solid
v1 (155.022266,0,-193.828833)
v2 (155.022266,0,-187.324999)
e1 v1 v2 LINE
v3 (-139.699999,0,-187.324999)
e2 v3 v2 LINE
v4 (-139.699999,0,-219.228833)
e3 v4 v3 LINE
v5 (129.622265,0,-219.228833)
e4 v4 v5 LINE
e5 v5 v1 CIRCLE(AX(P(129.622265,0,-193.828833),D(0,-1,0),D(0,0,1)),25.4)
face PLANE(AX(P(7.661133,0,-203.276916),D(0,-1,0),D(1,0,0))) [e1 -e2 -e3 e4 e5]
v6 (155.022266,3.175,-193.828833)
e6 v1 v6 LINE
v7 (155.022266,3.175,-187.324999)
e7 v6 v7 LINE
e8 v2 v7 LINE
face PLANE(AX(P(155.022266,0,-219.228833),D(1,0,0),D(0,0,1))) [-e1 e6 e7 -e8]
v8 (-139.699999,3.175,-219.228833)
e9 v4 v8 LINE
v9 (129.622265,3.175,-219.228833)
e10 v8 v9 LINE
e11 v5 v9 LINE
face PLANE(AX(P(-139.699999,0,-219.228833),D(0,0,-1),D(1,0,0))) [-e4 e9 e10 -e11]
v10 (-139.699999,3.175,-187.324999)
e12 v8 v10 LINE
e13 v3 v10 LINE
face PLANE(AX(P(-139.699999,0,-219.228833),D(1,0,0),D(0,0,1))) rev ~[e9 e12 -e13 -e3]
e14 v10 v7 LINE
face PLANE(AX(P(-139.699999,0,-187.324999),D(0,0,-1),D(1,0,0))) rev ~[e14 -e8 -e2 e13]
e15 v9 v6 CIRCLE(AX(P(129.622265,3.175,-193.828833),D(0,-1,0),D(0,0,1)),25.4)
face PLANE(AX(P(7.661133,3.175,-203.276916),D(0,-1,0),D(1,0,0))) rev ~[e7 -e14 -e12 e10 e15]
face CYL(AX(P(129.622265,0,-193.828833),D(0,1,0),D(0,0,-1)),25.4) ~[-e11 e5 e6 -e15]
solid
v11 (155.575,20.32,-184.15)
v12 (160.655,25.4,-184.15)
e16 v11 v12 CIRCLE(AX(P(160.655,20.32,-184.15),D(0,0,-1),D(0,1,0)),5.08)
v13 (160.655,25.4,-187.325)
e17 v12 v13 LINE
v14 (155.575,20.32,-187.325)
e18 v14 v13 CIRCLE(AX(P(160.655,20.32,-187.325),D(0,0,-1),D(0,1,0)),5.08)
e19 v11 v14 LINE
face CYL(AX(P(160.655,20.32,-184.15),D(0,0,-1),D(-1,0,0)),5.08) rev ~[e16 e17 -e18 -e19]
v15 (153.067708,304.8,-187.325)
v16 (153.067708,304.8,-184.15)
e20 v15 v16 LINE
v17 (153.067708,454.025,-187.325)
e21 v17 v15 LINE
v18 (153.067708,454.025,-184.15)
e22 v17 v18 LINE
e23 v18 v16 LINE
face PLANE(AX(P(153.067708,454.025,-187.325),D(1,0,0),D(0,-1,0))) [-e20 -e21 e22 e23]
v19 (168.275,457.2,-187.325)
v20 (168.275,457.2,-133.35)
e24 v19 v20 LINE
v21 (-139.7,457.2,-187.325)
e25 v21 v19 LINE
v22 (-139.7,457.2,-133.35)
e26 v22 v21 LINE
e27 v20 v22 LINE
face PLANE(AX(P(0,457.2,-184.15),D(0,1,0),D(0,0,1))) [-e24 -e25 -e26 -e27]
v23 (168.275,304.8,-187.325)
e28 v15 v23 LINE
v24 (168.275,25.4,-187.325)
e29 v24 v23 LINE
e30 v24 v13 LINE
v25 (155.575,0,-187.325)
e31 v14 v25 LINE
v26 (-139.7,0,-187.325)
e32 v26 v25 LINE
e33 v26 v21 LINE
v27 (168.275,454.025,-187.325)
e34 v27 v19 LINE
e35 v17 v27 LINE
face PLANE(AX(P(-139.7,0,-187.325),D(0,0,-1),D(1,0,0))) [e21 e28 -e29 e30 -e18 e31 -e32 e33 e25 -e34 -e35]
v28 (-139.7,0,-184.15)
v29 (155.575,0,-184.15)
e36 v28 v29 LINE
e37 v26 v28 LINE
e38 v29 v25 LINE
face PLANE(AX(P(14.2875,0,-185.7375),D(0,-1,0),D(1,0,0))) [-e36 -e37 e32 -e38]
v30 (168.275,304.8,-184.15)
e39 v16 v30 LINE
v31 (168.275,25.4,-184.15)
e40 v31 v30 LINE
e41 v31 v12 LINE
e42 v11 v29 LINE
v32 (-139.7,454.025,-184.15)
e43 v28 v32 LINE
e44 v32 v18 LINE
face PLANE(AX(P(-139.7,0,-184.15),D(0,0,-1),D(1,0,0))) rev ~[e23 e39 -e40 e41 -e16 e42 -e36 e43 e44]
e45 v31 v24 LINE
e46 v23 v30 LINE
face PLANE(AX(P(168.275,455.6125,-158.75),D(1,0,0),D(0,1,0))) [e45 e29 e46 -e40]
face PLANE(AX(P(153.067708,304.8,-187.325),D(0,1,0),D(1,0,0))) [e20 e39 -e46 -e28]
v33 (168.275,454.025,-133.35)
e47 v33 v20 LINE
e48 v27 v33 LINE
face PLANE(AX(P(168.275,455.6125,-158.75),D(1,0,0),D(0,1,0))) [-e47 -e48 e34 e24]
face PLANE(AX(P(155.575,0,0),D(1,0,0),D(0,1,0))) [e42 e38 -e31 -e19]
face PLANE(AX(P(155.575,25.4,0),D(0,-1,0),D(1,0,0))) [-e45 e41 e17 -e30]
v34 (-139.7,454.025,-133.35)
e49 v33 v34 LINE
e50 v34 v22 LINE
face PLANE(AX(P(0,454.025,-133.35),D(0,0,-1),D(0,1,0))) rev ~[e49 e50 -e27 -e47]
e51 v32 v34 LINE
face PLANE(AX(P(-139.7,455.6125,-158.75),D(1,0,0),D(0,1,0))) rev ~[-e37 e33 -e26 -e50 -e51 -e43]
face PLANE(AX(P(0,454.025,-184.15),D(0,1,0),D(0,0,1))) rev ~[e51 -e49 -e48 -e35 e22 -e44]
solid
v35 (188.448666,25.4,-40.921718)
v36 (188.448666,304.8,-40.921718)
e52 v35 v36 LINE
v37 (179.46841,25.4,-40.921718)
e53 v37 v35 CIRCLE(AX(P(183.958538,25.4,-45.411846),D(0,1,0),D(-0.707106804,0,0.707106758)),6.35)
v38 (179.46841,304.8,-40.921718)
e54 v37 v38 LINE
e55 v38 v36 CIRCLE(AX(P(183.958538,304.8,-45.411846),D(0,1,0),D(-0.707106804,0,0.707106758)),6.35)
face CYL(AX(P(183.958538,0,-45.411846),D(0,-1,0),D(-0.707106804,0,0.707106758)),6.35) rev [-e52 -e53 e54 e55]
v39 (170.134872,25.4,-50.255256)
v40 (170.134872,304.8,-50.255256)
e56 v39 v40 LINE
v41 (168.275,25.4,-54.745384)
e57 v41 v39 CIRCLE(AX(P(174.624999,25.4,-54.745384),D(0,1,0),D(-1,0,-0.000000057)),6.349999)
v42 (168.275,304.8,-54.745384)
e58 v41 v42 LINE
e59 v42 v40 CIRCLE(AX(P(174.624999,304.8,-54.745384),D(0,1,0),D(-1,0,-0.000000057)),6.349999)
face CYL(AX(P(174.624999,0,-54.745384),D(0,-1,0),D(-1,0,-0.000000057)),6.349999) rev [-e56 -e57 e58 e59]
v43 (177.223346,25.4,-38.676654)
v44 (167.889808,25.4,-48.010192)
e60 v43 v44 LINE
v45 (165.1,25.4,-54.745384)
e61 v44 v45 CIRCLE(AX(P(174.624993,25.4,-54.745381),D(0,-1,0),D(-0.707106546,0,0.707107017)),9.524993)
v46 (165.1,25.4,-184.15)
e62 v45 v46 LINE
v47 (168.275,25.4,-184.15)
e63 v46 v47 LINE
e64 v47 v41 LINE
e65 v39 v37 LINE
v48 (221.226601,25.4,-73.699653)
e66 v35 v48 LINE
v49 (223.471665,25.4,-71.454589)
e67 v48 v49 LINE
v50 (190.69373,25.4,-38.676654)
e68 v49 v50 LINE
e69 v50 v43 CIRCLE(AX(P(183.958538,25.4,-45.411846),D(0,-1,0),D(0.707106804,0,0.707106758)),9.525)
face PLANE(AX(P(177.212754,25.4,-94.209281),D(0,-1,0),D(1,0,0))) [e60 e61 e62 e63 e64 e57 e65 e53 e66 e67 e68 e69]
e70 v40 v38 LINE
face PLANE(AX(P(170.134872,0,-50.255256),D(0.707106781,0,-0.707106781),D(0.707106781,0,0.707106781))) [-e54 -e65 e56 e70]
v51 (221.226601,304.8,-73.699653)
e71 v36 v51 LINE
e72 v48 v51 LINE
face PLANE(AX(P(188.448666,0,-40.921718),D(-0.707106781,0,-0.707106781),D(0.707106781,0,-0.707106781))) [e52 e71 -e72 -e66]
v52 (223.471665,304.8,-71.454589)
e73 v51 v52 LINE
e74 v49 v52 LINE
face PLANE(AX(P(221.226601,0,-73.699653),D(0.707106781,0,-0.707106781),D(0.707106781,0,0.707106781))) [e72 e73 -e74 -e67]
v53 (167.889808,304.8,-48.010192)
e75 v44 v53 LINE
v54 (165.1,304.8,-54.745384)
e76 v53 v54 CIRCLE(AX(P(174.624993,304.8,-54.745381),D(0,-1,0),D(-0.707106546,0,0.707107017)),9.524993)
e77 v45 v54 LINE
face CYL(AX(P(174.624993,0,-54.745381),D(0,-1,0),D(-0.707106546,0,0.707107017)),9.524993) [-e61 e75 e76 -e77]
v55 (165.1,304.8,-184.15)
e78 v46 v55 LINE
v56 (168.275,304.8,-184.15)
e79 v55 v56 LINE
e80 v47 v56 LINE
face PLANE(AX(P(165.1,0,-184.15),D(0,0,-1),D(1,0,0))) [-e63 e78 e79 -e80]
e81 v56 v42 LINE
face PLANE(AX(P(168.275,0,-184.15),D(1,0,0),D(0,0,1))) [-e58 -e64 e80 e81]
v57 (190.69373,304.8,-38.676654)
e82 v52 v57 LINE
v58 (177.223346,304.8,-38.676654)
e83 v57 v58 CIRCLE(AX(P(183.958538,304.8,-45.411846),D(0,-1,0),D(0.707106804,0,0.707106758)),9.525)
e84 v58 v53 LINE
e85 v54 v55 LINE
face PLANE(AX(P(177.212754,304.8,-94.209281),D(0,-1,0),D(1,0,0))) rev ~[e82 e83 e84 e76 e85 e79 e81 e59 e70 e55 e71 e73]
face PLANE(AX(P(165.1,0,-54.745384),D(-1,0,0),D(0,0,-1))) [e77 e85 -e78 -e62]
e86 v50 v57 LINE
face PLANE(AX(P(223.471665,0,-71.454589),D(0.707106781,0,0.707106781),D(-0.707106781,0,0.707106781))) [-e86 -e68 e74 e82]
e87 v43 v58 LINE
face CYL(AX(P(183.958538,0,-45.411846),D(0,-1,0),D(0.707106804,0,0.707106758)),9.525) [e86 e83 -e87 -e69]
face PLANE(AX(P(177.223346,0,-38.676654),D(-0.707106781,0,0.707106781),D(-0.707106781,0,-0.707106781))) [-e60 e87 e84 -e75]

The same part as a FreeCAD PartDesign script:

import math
import FreeCAD as App
import Part
import Sketcher
Q = App.Units.Quantity


def edges_at(feature, points):
    """Names of the edges that pass closest to the given points."""
    edges = feature.Shape.Edges
    near = lambda p: min(range(len(edges)), key=lambda i: edges[i].distToShape(Part.Vertex(*p))[0])
    return sorted({f"Edge{near(p) + 1}" for p in points})


def add_polygon(sketch, points):
    """Adds a closed chain of lines whose ends are joined by coincident constraints."""
    first, n = sketch.GeometryCount, len(points)
    for a, b in zip(points, points[1:] + points[:1]):
        sketch.addGeometry(Part.LineSegment(App.Vector(*a, 0), App.Vector(*b, 0)), False)
    for i in range(n):
        sketch.addConstraint(Sketcher.Constraint("Coincident", first + i, 2, first + (i + 1) % n, 1))

doc = App.newDocument("Part")
body = doc.addObject("PartDesign::Body", "Body")

# Sketch on XZ plane
sketch1 = doc.addObject("Sketcher::SketchObject", "Sketch")
body.addObject(sketch1)
sketch1.AttachmentSupport = (doc.XZ_Plane, [""])
sketch1.MapMode = "FlatFace"
add_polygon(sketch1, [(-139.7, -184.15), (-139.7, -187.325), (168.275, -187.325), (168.275, -184.15)])  # lines 0-3
sketch1.addConstraint([
    Sketcher.Constraint("Vertical", 0),
    Sketcher.Constraint("Horizontal", 1),
    Sketcher.Constraint("Vertical", 2),
    Sketcher.Constraint("Horizontal", 3),
    Sketcher.Constraint("DistanceX", 0, 2, -1, 1, Q("5.5 in")),
    Sketcher.Constraint("DistanceX", 1, 1, 1, 2, Q("12.125 in")),
    Sketcher.Constraint("DistanceY", 0, 2, 0, 1, Q("0.125 in")),
    Sketcher.Constraint("DistanceY", 2, 2, -1, 1, Q("7.25 in")),
])
pad1 = doc.addObject("PartDesign::Pad", "Pad")
body.addObject(pad1)
pad1.Profile = sketch1
pad1.Length = Q("18 in")
pad1.Reversed = True

# Sketch on YZ plane
sketch2 = doc.addObject("Sketcher::SketchObject", "Sketch001")
body.addObject(sketch2)
sketch2.AttachmentSupport = (doc.YZ_Plane, [""])
sketch2.MapMode = "FlatFace"
add_polygon(sketch2, [(454.025, -133.35), (454.025, -184.15), (457.2, -184.15), (457.2, -133.35)])  # lines 0-3
sketch2.addConstraint([
    Sketcher.Constraint("Vertical", 0),
    Sketcher.Constraint("Horizontal", 1),
    Sketcher.Constraint("Vertical", 2),
    Sketcher.Constraint("Horizontal", 3),
    Sketcher.Constraint("DistanceY", 0, 2, 0, 1, Q("2 in")),
    Sketcher.Constraint("DistanceX", -1, 1, 1, 2, Q("18 in")),
    Sketcher.Constraint("DistanceX", 1, 1, 1, 2, Q("0.125 in")),
    Sketcher.Constraint("DistanceY", 0, 2, -1, 1, Q("7.25 in")),
])
pad2 = doc.addObject("PartDesign::Pad", "Pad001")
body.addObject(pad2)
pad2.Profile = sketch2
pad2.Type = "TwoLengths"
pad2.Length = Q("6.625 in")
pad2.Length2 = Q("5.5 in")

# Sketch on XY plane
sketch3 = doc.addObject("Sketcher::SketchObject", "Sketch002")
body.addObject(sketch3)
sketch3.AttachmentSupport = (doc.XY_Plane, [""])
sketch3.MapMode = "FlatFace"
sketch3.AttachmentOffset = App.Placement(App.Vector(0, 0, -7.375 * 25.4), App.Rotation())
add_polygon(sketch3, [(153.067708, 304.8), (153.067708, 454.025), (168.275, 454.025), (168.275, 304.8)])  # lines 0-3
sketch3.addConstraint([
    Sketcher.Constraint("Vertical", 0),
    Sketcher.Constraint("Horizontal", 1),
    Sketcher.Constraint("Vertical", 2),
    Sketcher.Constraint("Horizontal", 3),
    Sketcher.Constraint("DistanceY", -1, 1, 2, 2, Q("12 in")),
    Sketcher.Constraint("DistanceY", 0, 1, 0, 2, Q("5.875 in")),
    Sketcher.Constraint("DistanceX", -1, 1, 1, 2, Q("6.625 in")),
    Sketcher.Constraint("DistanceX", 1, 1, 1, 2, Q("15.207292 mm")),
])
pocket1 = doc.addObject("PartDesign::Pocket", "Pocket")
body.addObject(pocket1)
pocket1.Profile = sketch3
pocket1.Length = Q("0.125 in")
pocket1.Reversed = True

# Sketch on XY plane
sketch4 = doc.addObject("Sketcher::SketchObject", "Sketch003")
body.addObject(sketch4)
sketch4.AttachmentSupport = (doc.XY_Plane, [""])
sketch4.MapMode = "FlatFace"
add_polygon(sketch4, [(155.575, 25.4), (155.575, 0), (168.275, 0), (168.275, 25.4)])  # lines 0-3
sketch4.addConstraint([
    Sketcher.Constraint("Vertical", 0),
    Sketcher.Constraint("Horizontal", 1),
    Sketcher.Constraint("Vertical", 2),
    Sketcher.Constraint("Horizontal", 3),
    Sketcher.Constraint("PointOnObject", 0, 2, -1),
    Sketcher.Constraint("DistanceY", 0, 2, 0, 1, Q("1 in")),
    Sketcher.Constraint("DistanceX", 1, 1, 1, 2, Q("0.5 in")),
    Sketcher.Constraint("DistanceX", -1, 1, 0, 2, Q("6.125 in")),
])
pocket2 = doc.addObject("PartDesign::Pocket", "Pocket001")
body.addObject(pocket2)
pocket2.Profile = sketch4
pocket2.Length = Q("12 in")
doc.recompute()

fillet = doc.addObject("PartDesign::Fillet", "Fillet")
body.addObject(fillet)
fillet.Base = (pocket2, edges_at(pocket2, [(155.575, 25.4, -185.738)]))
fillet.Radius = Q("0.2 in")
body2 = doc.addObject("PartDesign::Body", "Body001")

# Sketch on XZ plane
sketch5 = doc.addObject("Sketcher::SketchObject", "Sketch004")
body2.addObject(sketch5)
sketch5.AttachmentSupport = (doc.getObject("XZ_Plane001"), [""])
sketch5.MapMode = "FlatFace"
add_polygon(sketch5, [(-139.699999, -187.324999), (-139.699999, -219.228833), (155.022266, -219.228833), (155.022266, -187.324999)])  # lines 0-3
sketch5.addConstraint([
    Sketcher.Constraint("Vertical", 0),
    Sketcher.Constraint("Horizontal", 1),
    Sketcher.Constraint("Vertical", 2),
    Sketcher.Constraint("Horizontal", 3),
    Sketcher.Constraint("DistanceX", 0, 2, -1, 1, Q("5.5 in")),
    Sketcher.Constraint("DistanceY", 2, 2, -1, 1, Q("7.375 in")),
    Sketcher.Constraint("DistanceX", 1, 1, 1, 2, Q("294.722265 mm")),
    Sketcher.Constraint("DistanceY", 0, 2, 0, 1, Q("31.903833 mm")),
])
pad3 = doc.addObject("PartDesign::Pad", "Pad002")
body2.addObject(pad3)
pad3.Profile = sketch5
pad3.Length = Q("0.125 in")
pad3.Reversed = True
doc.recompute()

fillet2 = doc.addObject("PartDesign::Fillet", "Fillet001")
body2.addObject(fillet2)
fillet2.Base = (pad3, edges_at(pad3, [(155.022, 1.587, -219.229)]))
fillet2.Radius = Q("1 in")
body3 = doc.addObject("PartDesign::Body", "Body002")

# Sketch on XZ plane
sketch6 = doc.addObject("Sketcher::SketchObject", "Sketch005")
body3.addObject(sketch6)
sketch6.AttachmentSupport = (doc.getObject("XZ_Plane002"), [""])
sketch6.MapMode = "FlatFace"
sketch6.addGeometry([
    Part.LineSegment(App.Vector(165.1, -54.745384, 0), App.Vector(165.1, -184.15, 0)),  # 0
    Part.LineSegment(App.Vector(165.1, -184.15, 0), App.Vector(168.275, -184.15, 0)),  # 1
    Part.LineSegment(App.Vector(168.275, -184.15, 0), App.Vector(168.275, -54.745384, 0)),  # 2
    Part.ArcOfCircle(Part.Circle(App.Vector(174.624999, -54.745384, 0), App.Vector(0, 0, 1), 6.349999), math.radians(134.999995), math.radians(180.000003)),  # 3
    Part.LineSegment(App.Vector(170.134872, -50.255256, 0), App.Vector(179.46841, -40.921718, 0)),  # 4
    Part.ArcOfCircle(Part.Circle(App.Vector(183.958538, -45.411846, 0), App.Vector(0, 0, 1), 6.35), math.radians(44.999998), math.radians(135.000002)),  # 5
    Part.LineSegment(App.Vector(188.448666, -40.921718, 0), App.Vector(221.226601, -73.699653, 0)),  # 6
    Part.LineSegment(App.Vector(221.226601, -73.699653, 0), App.Vector(223.471665, -71.454589, 0)),  # 7
    Part.LineSegment(App.Vector(223.471665, -71.454589, 0), App.Vector(190.69373, -38.676654, 0)),  # 8
    Part.ArcOfCircle(Part.Circle(App.Vector(183.958538, -45.411846, 0), App.Vector(0, 0, 1), 9.525), math.radians(44.999998), math.radians(135.000002)),  # 9
    Part.LineSegment(App.Vector(177.223346, -38.676654, 0), App.Vector(167.889808, -48.010192, 0)),  # 10
    Part.ArcOfCircle(Part.Circle(App.Vector(174.624993, -54.745381, 0), App.Vector(0, 0, 1), 9.524993), math.radians(134.999981), math.radians(180.000017)),  # 11
], False)
sketch6.addConstraint([
    Sketcher.Constraint("Coincident", 0, 2, 1, 1),
    Sketcher.Constraint("Coincident", 1, 2, 2, 1),
    Sketcher.Constraint("Tangent", 2, 2, 3, 2),
    Sketcher.Constraint("Tangent", 3, 1, 4, 1),
    Sketcher.Constraint("Tangent", 4, 2, 5, 2),
    Sketcher.Constraint("Tangent", 5, 1, 6, 1),
    Sketcher.Constraint("Coincident", 6, 2, 7, 1),
    Sketcher.Constraint("Coincident", 7, 2, 8, 1),
    Sketcher.Constraint("Tangent", 8, 2, 9, 1),
    Sketcher.Constraint("Tangent", 9, 2, 10, 1),
    Sketcher.Constraint("Tangent", 10, 2, 11, 1),
    Sketcher.Constraint("Tangent", 11, 2, 0, 1),
    Sketcher.Constraint("Vertical", 0),
    Sketcher.Constraint("Horizontal", 1),
    Sketcher.Constraint("Vertical", 2),
    Sketcher.Constraint("Coincident", 9, 3, 5, 3),
    Sketcher.Constraint("Coincident", 11, 3, 3, 3),
    Sketcher.Constraint("Equal", 3, 5),
    Sketcher.Constraint("Perpendicular", 4, 6),
    Sketcher.Constraint("Perpendicular", 6, 7),
    Sketcher.Constraint("Perpendicular", 7, 8),
    Sketcher.Constraint("Perpendicular", 8, 10),
    Sketcher.Constraint("Horizontal", 4, 2, 5, 1),
    Sketcher.Constraint("Radius", 3, Q("0.25 in")),
    Sketcher.Constraint("Radius", 9, Q("0.375 in")),
    Sketcher.Constraint("DistanceX", -1, 1, 0, 2, Q("6.5 in")),
    Sketcher.Constraint("DistanceY", 0, 2, -1, 1, Q("7.25 in")),
    Sketcher.Constraint("Distance", 6, Q("1.825 in")),
    Sketcher.Constraint("DistanceX", -1, 1, 6, 2, Q("221.226601 mm")),
    Sketcher.Constraint("DistanceY", 0, 2, 0, 1, Q("129.404616 mm")),
])
pad4 = doc.addObject("PartDesign::Pad", "Pad003")
body3.addObject(pad4)
pad4.Profile = sketch6
pad4.Length = Q("12 in")
pad4.Reversed = True

# Sketch on XZ plane
sketch7 = doc.addObject("Sketcher::SketchObject", "Sketch006")
body3.addObject(sketch7)
sketch7.AttachmentSupport = (doc.getObject("XZ_Plane002"), [""])
sketch7.MapMode = "FlatFace"
sketch7.addGeometry([
    Part.LineSegment(App.Vector(165.1, -54.745384, 0), App.Vector(165.1, -184.15, 0)),  # 0
    Part.LineSegment(App.Vector(165.1, -184.15, 0), App.Vector(168.275, -184.15, 0)),  # 1
    Part.LineSegment(App.Vector(168.275, -184.15, 0), App.Vector(168.275, -54.745384, 0)),  # 2
    Part.ArcOfCircle(Part.Circle(App.Vector(174.624999, -54.745384, 0), App.Vector(0, 0, 1), 6.349999), math.radians(134.999995), math.radians(180.000003)),  # 3
    Part.LineSegment(App.Vector(170.134872, -50.255256, 0), App.Vector(179.46841, -40.921718, 0)),  # 4
    Part.ArcOfCircle(Part.Circle(App.Vector(183.958538, -45.411846, 0), App.Vector(0, 0, 1), 6.35), math.radians(44.999998), math.radians(135.000002)),  # 5
    Part.LineSegment(App.Vector(188.448666, -40.921718, 0), App.Vector(221.226601, -73.699653, 0)),  # 6
    Part.LineSegment(App.Vector(221.226601, -73.699653, 0), App.Vector(223.471665, -71.454589, 0)),  # 7
    Part.LineSegment(App.Vector(223.471665, -71.454589, 0), App.Vector(190.69373, -38.676654, 0)),  # 8
    Part.ArcOfCircle(Part.Circle(App.Vector(183.958538, -45.411846, 0), App.Vector(0, 0, 1), 9.525), math.radians(44.999998), math.radians(135.000002)),  # 9
    Part.LineSegment(App.Vector(177.223346, -38.676654, 0), App.Vector(167.889808, -48.010192, 0)),  # 10
    Part.ArcOfCircle(Part.Circle(App.Vector(174.624993, -54.745381, 0), App.Vector(0, 0, 1), 9.524993), math.radians(134.999981), math.radians(180.000017)),  # 11
], False)
sketch7.addConstraint([
    Sketcher.Constraint("Coincident", 0, 2, 1, 1),
    Sketcher.Constraint("Coincident", 1, 2, 2, 1),
    Sketcher.Constraint("Tangent", 2, 2, 3, 2),
    Sketcher.Constraint("Tangent", 3, 1, 4, 1),
    Sketcher.Constraint("Tangent", 4, 2, 5, 2),
    Sketcher.Constraint("Tangent", 5, 1, 6, 1),
    Sketcher.Constraint("Coincident", 6, 2, 7, 1),
    Sketcher.Constraint("Coincident", 7, 2, 8, 1),
    Sketcher.Constraint("Tangent", 8, 2, 9, 1),
    Sketcher.Constraint("Tangent", 9, 2, 10, 1),
    Sketcher.Constraint("Tangent", 10, 2, 11, 1),
    Sketcher.Constraint("Tangent", 11, 2, 0, 1),
    Sketcher.Constraint("Vertical", 0),
    Sketcher.Constraint("Horizontal", 1),
    Sketcher.Constraint("Vertical", 2),
    Sketcher.Constraint("Coincident", 9, 3, 5, 3),
    Sketcher.Constraint("Coincident", 11, 3, 3, 3),
    Sketcher.Constraint("Equal", 3, 5),
    Sketcher.Constraint("Perpendicular", 4, 6),
    Sketcher.Constraint("Perpendicular", 6, 7),
    Sketcher.Constraint("Perpendicular", 7, 8),
    Sketcher.Constraint("Perpendicular", 8, 10),
    Sketcher.Constraint("Horizontal", 4, 2, 5, 1),
    Sketcher.Constraint("Radius", 3, Q("0.25 in")),
    Sketcher.Constraint("Radius", 9, Q("0.375 in")),
    Sketcher.Constraint("DistanceX", -1, 1, 0, 2, Q("6.5 in")),
    Sketcher.Constraint("DistanceY", 0, 2, -1, 1, Q("7.25 in")),
    Sketcher.Constraint("Distance", 6, Q("1.825 in")),
    Sketcher.Constraint("DistanceX", -1, 1, 6, 2, Q("221.226601 mm")),
    Sketcher.Constraint("DistanceY", 0, 2, 0, 1, Q("129.404616 mm")),
])
pocket3 = doc.addObject("PartDesign::Pocket", "Pocket002")
body3.addObject(pocket3)
pocket3.Profile = sketch7
pocket3.Length = Q("1 in")

doc.recompute()
